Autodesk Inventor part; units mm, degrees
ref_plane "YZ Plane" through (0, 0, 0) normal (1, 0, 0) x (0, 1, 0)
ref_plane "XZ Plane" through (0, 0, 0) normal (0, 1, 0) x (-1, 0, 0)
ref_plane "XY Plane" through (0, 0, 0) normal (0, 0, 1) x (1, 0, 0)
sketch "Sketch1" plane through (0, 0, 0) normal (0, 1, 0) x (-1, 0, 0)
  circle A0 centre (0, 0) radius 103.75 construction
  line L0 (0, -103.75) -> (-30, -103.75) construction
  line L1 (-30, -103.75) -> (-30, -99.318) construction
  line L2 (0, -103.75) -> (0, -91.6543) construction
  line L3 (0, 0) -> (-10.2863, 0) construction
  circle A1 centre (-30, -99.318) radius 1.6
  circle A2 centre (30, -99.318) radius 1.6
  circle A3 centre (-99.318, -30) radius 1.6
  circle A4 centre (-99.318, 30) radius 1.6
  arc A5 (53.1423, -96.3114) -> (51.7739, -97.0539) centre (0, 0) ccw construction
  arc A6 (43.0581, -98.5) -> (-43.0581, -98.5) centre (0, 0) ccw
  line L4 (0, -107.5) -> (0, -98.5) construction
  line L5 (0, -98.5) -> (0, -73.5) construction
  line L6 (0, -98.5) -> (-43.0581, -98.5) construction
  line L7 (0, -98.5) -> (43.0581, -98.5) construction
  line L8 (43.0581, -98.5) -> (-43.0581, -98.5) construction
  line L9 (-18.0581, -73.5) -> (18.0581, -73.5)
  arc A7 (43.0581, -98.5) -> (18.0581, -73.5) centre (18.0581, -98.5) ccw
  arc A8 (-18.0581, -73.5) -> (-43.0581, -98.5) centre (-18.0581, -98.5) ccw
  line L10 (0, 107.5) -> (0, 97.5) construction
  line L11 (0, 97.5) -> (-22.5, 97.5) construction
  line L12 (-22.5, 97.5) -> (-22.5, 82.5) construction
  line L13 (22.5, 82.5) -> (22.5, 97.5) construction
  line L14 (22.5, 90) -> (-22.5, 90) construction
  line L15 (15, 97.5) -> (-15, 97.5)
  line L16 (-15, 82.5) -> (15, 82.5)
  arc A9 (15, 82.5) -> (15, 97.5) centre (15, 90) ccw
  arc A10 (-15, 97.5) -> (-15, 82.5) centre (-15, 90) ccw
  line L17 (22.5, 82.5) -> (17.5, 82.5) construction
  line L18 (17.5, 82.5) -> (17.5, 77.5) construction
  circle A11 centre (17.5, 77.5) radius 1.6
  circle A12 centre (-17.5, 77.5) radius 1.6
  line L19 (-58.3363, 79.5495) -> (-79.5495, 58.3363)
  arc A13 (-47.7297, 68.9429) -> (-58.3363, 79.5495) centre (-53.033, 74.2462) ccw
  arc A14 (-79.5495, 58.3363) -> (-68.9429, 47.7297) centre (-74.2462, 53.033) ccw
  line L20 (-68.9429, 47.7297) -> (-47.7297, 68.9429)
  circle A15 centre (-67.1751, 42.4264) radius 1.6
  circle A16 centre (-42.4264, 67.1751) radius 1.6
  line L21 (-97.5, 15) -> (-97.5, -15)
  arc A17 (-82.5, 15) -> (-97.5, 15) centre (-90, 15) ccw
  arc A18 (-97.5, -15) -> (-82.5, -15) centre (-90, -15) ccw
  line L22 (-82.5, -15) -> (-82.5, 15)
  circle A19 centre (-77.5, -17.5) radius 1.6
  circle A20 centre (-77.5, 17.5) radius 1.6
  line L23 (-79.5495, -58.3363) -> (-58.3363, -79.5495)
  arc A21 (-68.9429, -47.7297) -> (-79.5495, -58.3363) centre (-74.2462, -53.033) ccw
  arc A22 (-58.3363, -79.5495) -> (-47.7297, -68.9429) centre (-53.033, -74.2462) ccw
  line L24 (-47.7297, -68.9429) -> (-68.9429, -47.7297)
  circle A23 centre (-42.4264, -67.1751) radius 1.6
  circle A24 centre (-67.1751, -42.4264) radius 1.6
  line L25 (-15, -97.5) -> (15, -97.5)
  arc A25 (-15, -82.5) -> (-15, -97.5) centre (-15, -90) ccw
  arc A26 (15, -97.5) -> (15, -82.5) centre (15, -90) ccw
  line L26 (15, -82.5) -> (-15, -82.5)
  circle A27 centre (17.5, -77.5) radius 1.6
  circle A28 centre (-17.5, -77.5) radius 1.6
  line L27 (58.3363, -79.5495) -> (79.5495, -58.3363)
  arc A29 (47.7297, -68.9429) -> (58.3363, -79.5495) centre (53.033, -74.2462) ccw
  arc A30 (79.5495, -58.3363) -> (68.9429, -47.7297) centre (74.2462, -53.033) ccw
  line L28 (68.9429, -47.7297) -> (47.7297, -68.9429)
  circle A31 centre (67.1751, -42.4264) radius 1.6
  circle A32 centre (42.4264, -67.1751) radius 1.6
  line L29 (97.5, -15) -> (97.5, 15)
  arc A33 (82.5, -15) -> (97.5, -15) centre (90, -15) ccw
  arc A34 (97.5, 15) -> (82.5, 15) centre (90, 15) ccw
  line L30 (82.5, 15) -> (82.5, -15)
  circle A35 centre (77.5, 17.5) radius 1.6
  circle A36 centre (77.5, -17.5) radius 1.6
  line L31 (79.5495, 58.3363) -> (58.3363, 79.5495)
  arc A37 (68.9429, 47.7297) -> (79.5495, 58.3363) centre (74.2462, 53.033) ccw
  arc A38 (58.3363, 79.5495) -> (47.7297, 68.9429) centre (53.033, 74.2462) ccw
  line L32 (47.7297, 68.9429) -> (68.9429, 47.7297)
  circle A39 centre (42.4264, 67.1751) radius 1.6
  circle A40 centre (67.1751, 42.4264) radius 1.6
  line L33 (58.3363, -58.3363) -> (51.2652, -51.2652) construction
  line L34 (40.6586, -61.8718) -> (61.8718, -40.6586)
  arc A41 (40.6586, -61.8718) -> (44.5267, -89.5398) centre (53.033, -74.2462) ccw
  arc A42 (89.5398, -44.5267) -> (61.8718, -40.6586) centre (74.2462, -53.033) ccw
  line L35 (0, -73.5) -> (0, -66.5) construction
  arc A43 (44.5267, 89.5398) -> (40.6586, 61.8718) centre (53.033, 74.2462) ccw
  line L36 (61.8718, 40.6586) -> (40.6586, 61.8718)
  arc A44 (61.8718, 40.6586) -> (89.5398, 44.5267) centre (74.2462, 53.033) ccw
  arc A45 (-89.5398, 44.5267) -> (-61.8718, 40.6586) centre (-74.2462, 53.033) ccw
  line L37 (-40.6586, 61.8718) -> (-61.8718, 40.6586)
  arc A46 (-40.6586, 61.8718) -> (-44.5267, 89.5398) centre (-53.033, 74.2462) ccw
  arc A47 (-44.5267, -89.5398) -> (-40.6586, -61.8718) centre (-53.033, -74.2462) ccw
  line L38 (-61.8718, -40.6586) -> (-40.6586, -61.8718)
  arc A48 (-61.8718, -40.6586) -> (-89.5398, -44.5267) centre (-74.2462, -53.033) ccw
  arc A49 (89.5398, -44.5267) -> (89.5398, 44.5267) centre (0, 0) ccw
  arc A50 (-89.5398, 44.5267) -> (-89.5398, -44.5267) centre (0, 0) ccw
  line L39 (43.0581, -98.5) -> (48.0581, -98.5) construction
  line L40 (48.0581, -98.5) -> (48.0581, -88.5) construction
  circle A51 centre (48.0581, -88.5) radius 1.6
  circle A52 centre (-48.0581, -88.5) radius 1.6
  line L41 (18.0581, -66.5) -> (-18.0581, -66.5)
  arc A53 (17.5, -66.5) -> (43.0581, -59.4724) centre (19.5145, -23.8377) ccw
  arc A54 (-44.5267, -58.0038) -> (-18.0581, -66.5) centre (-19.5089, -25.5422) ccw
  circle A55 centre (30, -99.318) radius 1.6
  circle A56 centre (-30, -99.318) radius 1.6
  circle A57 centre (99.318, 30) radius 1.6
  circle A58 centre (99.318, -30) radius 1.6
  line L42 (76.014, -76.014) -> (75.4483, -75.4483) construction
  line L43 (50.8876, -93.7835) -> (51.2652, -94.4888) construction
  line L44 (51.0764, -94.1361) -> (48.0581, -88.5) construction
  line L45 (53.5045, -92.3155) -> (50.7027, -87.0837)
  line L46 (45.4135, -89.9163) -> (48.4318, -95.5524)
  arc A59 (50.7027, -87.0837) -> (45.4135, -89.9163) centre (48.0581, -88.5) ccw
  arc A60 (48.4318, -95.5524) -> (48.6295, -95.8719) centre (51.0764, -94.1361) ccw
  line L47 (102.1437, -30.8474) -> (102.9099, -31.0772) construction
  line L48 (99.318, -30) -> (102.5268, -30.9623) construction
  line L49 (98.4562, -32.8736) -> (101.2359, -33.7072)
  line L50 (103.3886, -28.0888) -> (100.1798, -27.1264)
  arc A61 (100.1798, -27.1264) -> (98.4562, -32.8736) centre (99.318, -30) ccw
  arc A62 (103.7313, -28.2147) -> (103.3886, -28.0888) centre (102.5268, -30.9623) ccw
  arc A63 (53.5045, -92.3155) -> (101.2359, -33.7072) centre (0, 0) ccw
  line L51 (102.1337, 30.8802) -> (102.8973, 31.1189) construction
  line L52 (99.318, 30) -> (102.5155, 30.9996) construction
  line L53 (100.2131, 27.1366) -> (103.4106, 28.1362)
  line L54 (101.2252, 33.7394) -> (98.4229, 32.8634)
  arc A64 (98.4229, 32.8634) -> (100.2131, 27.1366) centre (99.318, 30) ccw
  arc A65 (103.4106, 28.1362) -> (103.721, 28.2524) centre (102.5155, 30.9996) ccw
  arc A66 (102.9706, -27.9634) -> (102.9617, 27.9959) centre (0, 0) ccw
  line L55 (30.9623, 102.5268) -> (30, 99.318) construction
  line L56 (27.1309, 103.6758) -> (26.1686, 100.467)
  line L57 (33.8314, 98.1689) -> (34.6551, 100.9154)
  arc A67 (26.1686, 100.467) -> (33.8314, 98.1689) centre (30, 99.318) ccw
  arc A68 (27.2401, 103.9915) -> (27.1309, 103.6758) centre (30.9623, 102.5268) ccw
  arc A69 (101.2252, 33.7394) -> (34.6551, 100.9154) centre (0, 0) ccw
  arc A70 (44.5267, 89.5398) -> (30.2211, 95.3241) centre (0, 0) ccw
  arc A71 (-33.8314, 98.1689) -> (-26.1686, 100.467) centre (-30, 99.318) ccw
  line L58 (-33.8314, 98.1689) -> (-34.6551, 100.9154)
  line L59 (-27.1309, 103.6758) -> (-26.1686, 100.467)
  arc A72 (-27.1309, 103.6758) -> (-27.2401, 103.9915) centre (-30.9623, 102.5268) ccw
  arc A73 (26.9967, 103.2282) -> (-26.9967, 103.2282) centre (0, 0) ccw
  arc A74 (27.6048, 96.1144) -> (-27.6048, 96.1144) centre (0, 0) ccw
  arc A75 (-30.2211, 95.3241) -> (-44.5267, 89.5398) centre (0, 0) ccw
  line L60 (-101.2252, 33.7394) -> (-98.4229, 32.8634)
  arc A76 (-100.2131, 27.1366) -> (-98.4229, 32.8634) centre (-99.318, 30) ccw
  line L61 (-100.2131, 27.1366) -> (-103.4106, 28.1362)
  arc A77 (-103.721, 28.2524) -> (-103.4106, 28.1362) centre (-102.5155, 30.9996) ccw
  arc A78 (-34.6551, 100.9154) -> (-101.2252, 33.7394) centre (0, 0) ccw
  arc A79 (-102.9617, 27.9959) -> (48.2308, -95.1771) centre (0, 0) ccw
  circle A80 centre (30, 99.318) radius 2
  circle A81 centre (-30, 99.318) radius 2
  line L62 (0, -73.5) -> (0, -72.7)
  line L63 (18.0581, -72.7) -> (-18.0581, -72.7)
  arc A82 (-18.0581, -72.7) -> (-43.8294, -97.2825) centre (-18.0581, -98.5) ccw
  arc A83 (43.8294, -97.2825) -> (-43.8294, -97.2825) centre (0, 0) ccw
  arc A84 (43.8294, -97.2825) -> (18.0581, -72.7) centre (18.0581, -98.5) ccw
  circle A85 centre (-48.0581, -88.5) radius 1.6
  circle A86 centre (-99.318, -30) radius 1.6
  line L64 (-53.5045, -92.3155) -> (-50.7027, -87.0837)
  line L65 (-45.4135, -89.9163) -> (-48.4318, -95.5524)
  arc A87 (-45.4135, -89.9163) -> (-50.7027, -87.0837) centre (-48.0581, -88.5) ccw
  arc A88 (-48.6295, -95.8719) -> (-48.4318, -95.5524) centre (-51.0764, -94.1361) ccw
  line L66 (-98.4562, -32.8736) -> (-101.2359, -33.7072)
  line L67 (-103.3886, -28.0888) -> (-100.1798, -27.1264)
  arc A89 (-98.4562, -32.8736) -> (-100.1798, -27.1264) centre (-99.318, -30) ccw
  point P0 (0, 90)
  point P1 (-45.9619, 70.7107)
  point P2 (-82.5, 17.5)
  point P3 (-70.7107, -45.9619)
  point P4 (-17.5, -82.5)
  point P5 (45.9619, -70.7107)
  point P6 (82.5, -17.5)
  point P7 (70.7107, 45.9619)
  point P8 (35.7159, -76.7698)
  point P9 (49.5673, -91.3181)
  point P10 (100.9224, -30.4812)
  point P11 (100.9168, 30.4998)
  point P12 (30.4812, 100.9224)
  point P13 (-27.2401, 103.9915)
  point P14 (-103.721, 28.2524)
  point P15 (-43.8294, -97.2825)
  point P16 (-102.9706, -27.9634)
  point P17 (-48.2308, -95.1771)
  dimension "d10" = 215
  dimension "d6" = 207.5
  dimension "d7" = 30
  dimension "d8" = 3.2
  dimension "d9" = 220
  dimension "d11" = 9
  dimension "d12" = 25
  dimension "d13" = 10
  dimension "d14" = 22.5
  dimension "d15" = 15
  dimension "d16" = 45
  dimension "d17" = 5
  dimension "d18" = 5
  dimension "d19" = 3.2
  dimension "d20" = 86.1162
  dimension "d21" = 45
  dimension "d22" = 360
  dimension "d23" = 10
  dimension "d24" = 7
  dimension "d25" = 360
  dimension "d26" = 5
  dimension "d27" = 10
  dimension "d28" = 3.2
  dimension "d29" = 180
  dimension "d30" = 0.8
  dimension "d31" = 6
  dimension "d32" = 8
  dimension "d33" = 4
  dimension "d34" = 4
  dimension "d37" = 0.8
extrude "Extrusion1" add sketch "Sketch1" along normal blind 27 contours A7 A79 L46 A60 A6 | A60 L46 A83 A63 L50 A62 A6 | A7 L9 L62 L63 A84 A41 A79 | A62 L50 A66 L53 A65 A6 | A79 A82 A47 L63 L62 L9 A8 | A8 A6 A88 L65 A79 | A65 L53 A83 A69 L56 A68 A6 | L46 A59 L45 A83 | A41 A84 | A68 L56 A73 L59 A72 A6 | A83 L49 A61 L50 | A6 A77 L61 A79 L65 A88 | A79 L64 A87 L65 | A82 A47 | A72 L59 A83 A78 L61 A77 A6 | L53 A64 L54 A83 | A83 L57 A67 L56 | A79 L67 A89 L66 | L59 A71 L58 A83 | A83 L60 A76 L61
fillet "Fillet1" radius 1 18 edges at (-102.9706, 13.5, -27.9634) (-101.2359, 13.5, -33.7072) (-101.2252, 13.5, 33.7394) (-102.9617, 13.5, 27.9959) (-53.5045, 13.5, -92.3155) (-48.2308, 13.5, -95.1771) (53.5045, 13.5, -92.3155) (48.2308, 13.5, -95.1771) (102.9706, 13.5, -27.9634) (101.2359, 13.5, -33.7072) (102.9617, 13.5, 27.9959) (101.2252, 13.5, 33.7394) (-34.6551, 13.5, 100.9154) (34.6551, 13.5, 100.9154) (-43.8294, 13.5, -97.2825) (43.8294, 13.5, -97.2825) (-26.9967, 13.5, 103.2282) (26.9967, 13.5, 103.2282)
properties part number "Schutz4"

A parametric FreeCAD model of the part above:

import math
import FreeCAD as App
import Part
import Sketcher

V = App.Vector
Q = App.Units.Quantity


def edges_at(feature, points):
    """Names of the edges that pass closest to the given points."""
    edges = feature.Shape.Edges
    near = lambda p: min(range(len(edges)), key=lambda i: edges[i].distToShape(Part.Vertex(*p))[0])
    return sorted({f"Edge{near(p) + 1}" for p in points})

doc = App.newDocument("Part")
body = doc.addObject("PartDesign::Body", "Body")

# Sketch on XZ plane
sketch1 = doc.addObject("Sketcher::SketchObject", "Sketch")
body.addObject(sketch1)
sketch1.AttachmentSupport = (doc.XZ_Plane, [""])
sketch1.MapMode = "FlatFace"
sketch1.addGeometry([
    Part.ArcOfCircle(Part.Circle(V(0, 0, 0), V(0, 0, 1), 107.5), math.radians(-66), math.radians(246)),  # 0
    Part.ArcOfCircle(Part.Circle(V(18.1, -98.5, 0), V(0, 0, 1), 25), math.radians(0), math.radians(90)),  # 1
    Part.LineSegment(V(18.1, -73.5, 0), V(-18.1, -73.5, 0)),  # 2
    Part.ArcOfCircle(Part.Circle(V(-18.1, -98.5, 0), V(0, 0, 1), 25), math.radians(90), math.radians(180)),  # 3
    Part.ArcOfCircle(Part.Circle(V(0, 0, 0), V(0, 0, 1), 106.7), math.radians(-116.87), math.radians(-114.25)),  # 4
    Part.ArcOfCircle(Part.Circle(V(-18.1, -98.5, 0), V(0, 0, 1), 25.8), math.radians(90), math.radians(177)),  # 5
    Part.LineSegment(V(-18.1, -72.7, 0), V(18.1, -72.7, 0)),  # 6
    Part.ArcOfCircle(Part.Circle(V(18.1, -98.5, 0), V(0, 0, 1), 25.8), math.radians(3), math.radians(90)),  # 7
    Part.ArcOfCircle(Part.Circle(V(0, 0, 0), V(0, 0, 1), 106.7), math.radians(-65.75), math.radians(-63.13)),  # 8
    Part.LineSegment(V(48.2, -95.2, 0), V(45.4, -89.9, 0)),  # 9
    Part.ArcOfCircle(Part.Circle(V(48.1, -88.5, 0), V(0, 0, 1), 3), math.radians(28), math.radians(208)),  # 10
    Part.LineSegment(V(50.7, -87.1, 0), V(53.5, -92.3, 0)),  # 11
    Part.ArcOfCircle(Part.Circle(V(0, 0, 0), V(0, 0, 1), 106.7), math.radians(-60), math.radians(-18)),  # 12
    Part.LineSegment(V(101.2, -33.7, 0), V(98.5, -32.9, 0)),  # 13
    Part.ArcOfCircle(Part.Circle(V(99.3, -30, 0), V(0, 0, 1), 3), math.radians(73), math.radians(253)),  # 14
    Part.LineSegment(V(100.2, -27.1, 0), V(103, -28, 0)),  # 15
    Part.ArcOfCircle(Part.Circle(V(0, 0, 0), V(0, 0, 1), 106.7), math.radians(-15), math.radians(15)),  # 16
    Part.LineSegment(V(103, 28, 0), V(100.2, 27.1, 0)),  # 17
    Part.ArcOfCircle(Part.Circle(V(99.3, 30, 0), V(0, 0, 1), 3), math.radians(107), math.radians(287)),  # 18
    Part.LineSegment(V(98.4, 32.9, 0), V(101.2, 33.7, 0)),  # 19
    Part.ArcOfCircle(Part.Circle(V(0, 0, 0), V(0, 0, 1), 106.7), math.radians(18), math.radians(71)),  # 20
    Part.LineSegment(V(34.7, 100.9, 0), V(33.8, 98.2, 0)),  # 21
    Part.ArcOfCircle(Part.Circle(V(30, 99.3, 0), V(0, 0, 1), 4), math.radians(163), math.radians(343)),  # 22
    Part.LineSegment(V(26.2, 100.5, 0), V(27, 103.2, 0)),  # 23
    Part.ArcOfCircle(Part.Circle(V(0, 0, 0), V(0, 0, 1), 106.7), math.radians(75), math.radians(105)),  # 24
    Part.LineSegment(V(-27, 103.2, 0), V(-26.2, 100.5, 0)),  # 25
    Part.ArcOfCircle(Part.Circle(V(-30, 99.3, 0), V(0, 0, 1), 4), math.radians(-163), math.radians(17)),  # 26
    Part.LineSegment(V(-33.8, 98.2, 0), V(-34.7, 100.9, 0)),  # 27
    Part.ArcOfCircle(Part.Circle(V(0, 0, 0), V(0, 0, 1), 106.7), math.radians(109), math.radians(162)),  # 28
    Part.LineSegment(V(-101.2, 33.7, 0), V(-98.4, 32.9, 0)),  # 29
    Part.ArcOfCircle(Part.Circle(V(-99.3, 30, 0), V(0, 0, 1), 3), math.radians(-107), math.radians(73)),  # 30
    Part.LineSegment(V(-100.2, 27.1, 0), V(-103, 28, 0)),  # 31
    Part.ArcOfCircle(Part.Circle(V(0, 0, 0), V(0, 0, 1), 106.7), math.radians(165), math.radians(195)),  # 32
    Part.LineSegment(V(-103, -28, 0), V(-100.2, -27.1, 0)),  # 33
    Part.ArcOfCircle(Part.Circle(V(-99.3, -30, 0), V(0, 0, 1), 3), math.radians(-73), math.radians(107)),  # 34
    Part.LineSegment(V(-98.5, -32.9, 0), V(-101.2, -33.7, 0)),  # 35
    Part.ArcOfCircle(Part.Circle(V(0, 0, 0), V(0, 0, 1), 106.7), math.radians(-162), math.radians(-120)),  # 36
    Part.LineSegment(V(-53.5, -92.3, 0), V(-50.7, -87.1, 0)),  # 37
    Part.ArcOfCircle(Part.Circle(V(-48.1, -88.5, 0), V(0, 0, 1), 3), math.radians(-28), math.radians(152)),  # 38
    Part.LineSegment(V(-45.4, -89.9, 0), V(-48.2, -95.2, 0)),  # 39
    Part.Circle(V(-48.1, -88.5, 0), V(0, 0, 1), 1.6),  # 40
    Part.Circle(V(-99.3, -30, 0), V(0, 0, 1), 1.6),  # 41
    Part.Circle(V(-99.3, 30, 0), V(0, 0, 1), 1.6),  # 42
    Part.Circle(V(-30, 99.3, 0), V(0, 0, 1), 2),  # 43
    Part.Circle(V(99.3, -30, 0), V(0, 0, 1), 1.6),  # 44
    Part.Circle(V(48.1, -88.5, 0), V(0, 0, 1), 1.6),  # 45
    Part.Circle(V(99.3, 30, 0), V(0, 0, 1), 1.6),  # 46
    Part.Circle(V(30, 99.3, 0), V(0, 0, 1), 2),  # 47
], False)
sketch1.addConstraint([
    Sketcher.Constraint("Coincident", 0, 1, 1, 1),
    Sketcher.Constraint("Tangent", 1, 2, 2, 1),
    Sketcher.Constraint("Tangent", 2, 2, 3, 1),
    Sketcher.Constraint("Coincident", 3, 2, 0, 2),
    Sketcher.Constraint("Coincident", 4, 2, 5, 2),
    Sketcher.Constraint("Tangent", 5, 1, 6, 1),
    Sketcher.Constraint("Tangent", 6, 2, 7, 2),
    Sketcher.Constraint("Coincident", 7, 1, 8, 1),
    Sketcher.Constraint("Coincident", 8, 2, 9, 1),
    Sketcher.Constraint("Tangent", 9, 2, 10, 2),
    Sketcher.Constraint("Tangent", 10, 1, 11, 1),
    Sketcher.Constraint("Coincident", 11, 2, 12, 1),
    Sketcher.Constraint("Coincident", 12, 2, 13, 1),
    Sketcher.Constraint("Tangent", 13, 2, 14, 2),
    Sketcher.Constraint("Tangent", 14, 1, 15, 1),
    Sketcher.Constraint("Coincident", 15, 2, 16, 1),
    Sketcher.Constraint("Coincident", 16, 2, 17, 1),
    Sketcher.Constraint("Tangent", 17, 2, 18, 2),
    Sketcher.Constraint("Tangent", 18, 1, 19, 1),
    Sketcher.Constraint("Coincident", 19, 2, 20, 1),
    Sketcher.Constraint("Coincident", 20, 2, 21, 1),
    Sketcher.Constraint("Tangent", 21, 2, 22, 2),
    Sketcher.Constraint("Tangent", 22, 1, 23, 1),
    Sketcher.Constraint("Coincident", 23, 2, 24, 1),
    Sketcher.Constraint("Coincident", 24, 2, 25, 1),
    Sketcher.Constraint("Tangent", 25, 2, 26, 2),
    Sketcher.Constraint("Tangent", 26, 1, 27, 1),
    Sketcher.Constraint("Coincident", 27, 2, 28, 1),
    Sketcher.Constraint("Coincident", 28, 2, 29, 1),
    Sketcher.Constraint("Tangent", 29, 2, 30, 2),
    Sketcher.Constraint("Tangent", 30, 1, 31, 1),
    Sketcher.Constraint("Coincident", 31, 2, 32, 1),
    Sketcher.Constraint("Coincident", 32, 2, 33, 1),
    Sketcher.Constraint("Tangent", 33, 2, 34, 2),
    Sketcher.Constraint("Tangent", 34, 1, 35, 1),
    Sketcher.Constraint("Coincident", 35, 2, 36, 1),
    Sketcher.Constraint("Coincident", 36, 2, 37, 1),
    Sketcher.Constraint("Tangent", 37, 2, 38, 2),
    Sketcher.Constraint("Tangent", 38, 1, 39, 1),
    Sketcher.Constraint("Coincident", 39, 2, 4, 1),
    Sketcher.Constraint("Horizontal", 2),
    Sketcher.Constraint("Horizontal", 6),
    Sketcher.Constraint("Coincident", 0, 3, -1, 1),
    Sketcher.Constraint("Coincident", 4, 3, -1, 1),
    Sketcher.Constraint("Coincident", 8, 3, -1, 1),
    Sketcher.Constraint("Coincident", 12, 3, -1, 1),
    Sketcher.Constraint("Coincident", 16, 3, -1, 1),
    Sketcher.Constraint("Coincident", 20, 3, -1, 1),
    Sketcher.Constraint("Coincident", 24, 3, -1, 1),
    Sketcher.Constraint("Coincident", 28, 3, -1, 1),
    Sketcher.Constraint("Coincident", 32, 3, -1, 1),
    Sketcher.Constraint("Coincident", 36, 3, -1, 1),
    Sketcher.Constraint("Coincident", 5, 3, 3, 3),
    Sketcher.Constraint("Coincident", 7, 3, 1, 3),
    Sketcher.Constraint("Coincident", 40, 3, 38, 3),
    Sketcher.Constraint("Coincident", 41, 3, 34, 3),
    Sketcher.Constraint("Coincident", 42, 3, 30, 3),
    Sketcher.Constraint("Coincident", 43, 3, 26, 3),
    Sketcher.Constraint("Coincident", 44, 3, 14, 3),
    Sketcher.Constraint("Coincident", 45, 3, 10, 3),
    Sketcher.Constraint("Coincident", 46, 3, 18, 3),
    Sketcher.Constraint("Coincident", 47, 3, 22, 3),
    Sketcher.Constraint("Equal", 1, 3),
    Sketcher.Constraint("Equal", 4, 8),
    Sketcher.Constraint("Equal", 8, 12),
    Sketcher.Constraint("Equal", 10, 14),
    Sketcher.Constraint("Equal", 12, 16),
    Sketcher.Constraint("Equal", 14, 18),
    Sketcher.Constraint("Equal", 16, 20),
    Sketcher.Constraint("Equal", 20, 24),
    Sketcher.Constraint("Equal", 22, 26),
    Sketcher.Constraint("Equal", 24, 28),
    Sketcher.Constraint("Equal", 18, 30),
    Sketcher.Constraint("Equal", 28, 32),
    Sketcher.Constraint("Equal", 30, 34),
    Sketcher.Constraint("Equal", 32, 36),
    Sketcher.Constraint("Equal", 34, 38),
    Sketcher.Constraint("Equal", 40, 41),
    Sketcher.Constraint("Equal", 41, 42),
    Sketcher.Constraint("Equal", 42, 44),
    Sketcher.Constraint("Equal", 44, 45),
    Sketcher.Constraint("Equal", 45, 46),
    Sketcher.Constraint("Equal", 43, 47),
    Sketcher.Constraint("Symmetric", 14, 3, 30, 3, -1, 1),
    Sketcher.Constraint("Symmetric", 18, 3, 34, 3, -1, 1),
    Sketcher.Constraint("Symmetric", 22, 3, 26, 3, -2),
    Sketcher.Constraint("Symmetric", 18, 3, 30, 3, -2),
    Sketcher.Constraint("Symmetric", 10, 3, 38, 3, -2),
    Sketcher.Constraint("Parallel", 9, 11),
    Sketcher.Constraint("Parallel", 13, 15),
    Sketcher.Constraint("Parallel", 17, 19),
    Sketcher.Constraint("Perpendicular", 15, 21),
    Sketcher.Constraint("Parallel", 21, 23),
    Sketcher.Constraint("Parallel", 25, 27),
    Sketcher.Constraint("Parallel", 29, 31),
    Sketcher.Constraint("Perpendicular", 27, 33),
    Sketcher.Constraint("Parallel", 33, 35),
    Sketcher.Constraint("Parallel", 37, 39),
    Sketcher.Constraint("Horizontal", 7, 3, 0, 1),
    Sketcher.Constraint("Horizontal", 0, 1, 3, 2),
    Sketcher.Constraint("Horizontal", 23, 2, 24, 2),
    Sketcher.Constraint("Horizontal", 19, 2, 28, 2),
    Sketcher.Constraint("Horizontal", 11, 2, 36, 2),
    Sketcher.Constraint("Diameter", 43, 4.0),
    Sketcher.Constraint("Radius", 1, 25.0),
    Sketcher.Constraint("Radius", 10, 3.0),
    Sketcher.Constraint("Radius", 22, 4.0),
    Sketcher.Constraint("Diameter", 40, 3.2),
    Sketcher.Constraint("Radius", 0, 107.5),
    Sketcher.Constraint("DistanceY", 14, 3, -1, 1, 30.0),
    Sketcher.Constraint("DistanceX", -1, 1, 22, 3, 30.0),
    Sketcher.Constraint("Radius", 4, 106.7),
    Sketcher.Constraint("Radius", 5, 25.8),
    Sketcher.Constraint("DistanceY", 1, 3, -1, 1, 98.5),
    Sketcher.Constraint("DistanceY", 10, 3, -1, 1, 88.5),
    Sketcher.Constraint("Angle", 9, Q("118.1704 deg")),
    Sketcher.Constraint("Angle", 17, Q("-162.6398 deg")),
    Sketcher.Constraint("Distance", 13, 2.902),
    Sketcher.Constraint("Distance", 19, 2.936),
    Sketcher.Constraint("DistanceX", -1, 1, 10, 3, 48.058),
    Sketcher.Constraint("DistanceY", -1, 1, 22, 3, 99.318),
])
pad1 = doc.addObject("PartDesign::Pad", "Pad")
body.addObject(pad1)
pad1.Profile = sketch1
pad1.Length = 27
pad1.Reversed = True
doc.recompute()

fillet = doc.addObject("PartDesign::Fillet", "Fillet")
body.addObject(fillet)
fillet.Base = (pad1, edges_at(pad1, [
    (-102.971, 13.5, -27.963),
    (-101.236, 13.5, -33.707),
    (-101.225, 13.5, 33.739),
    (-102.962, 13.5, 27.996),
    (-53.505, 13.5, -92.316),
    (-48.231, 13.5, -95.177),
    (53.505, 13.5, -92.316),
    (48.231, 13.5, -95.177),
    (102.971, 13.5, -27.963),
    (101.236, 13.5, -33.707),
    (102.962, 13.5, 27.996),
    (101.225, 13.5, 33.739),
    (-34.655, 13.5, 100.915),
    (34.655, 13.5, 100.915),
    (-43.829, 13.5, -97.282),
    (43.829, 13.5, -97.282),
    (-26.997, 13.5, 103.228),
    (26.997, 13.5, 103.228),
]))
fillet.Radius = 1

doc.recompute()
